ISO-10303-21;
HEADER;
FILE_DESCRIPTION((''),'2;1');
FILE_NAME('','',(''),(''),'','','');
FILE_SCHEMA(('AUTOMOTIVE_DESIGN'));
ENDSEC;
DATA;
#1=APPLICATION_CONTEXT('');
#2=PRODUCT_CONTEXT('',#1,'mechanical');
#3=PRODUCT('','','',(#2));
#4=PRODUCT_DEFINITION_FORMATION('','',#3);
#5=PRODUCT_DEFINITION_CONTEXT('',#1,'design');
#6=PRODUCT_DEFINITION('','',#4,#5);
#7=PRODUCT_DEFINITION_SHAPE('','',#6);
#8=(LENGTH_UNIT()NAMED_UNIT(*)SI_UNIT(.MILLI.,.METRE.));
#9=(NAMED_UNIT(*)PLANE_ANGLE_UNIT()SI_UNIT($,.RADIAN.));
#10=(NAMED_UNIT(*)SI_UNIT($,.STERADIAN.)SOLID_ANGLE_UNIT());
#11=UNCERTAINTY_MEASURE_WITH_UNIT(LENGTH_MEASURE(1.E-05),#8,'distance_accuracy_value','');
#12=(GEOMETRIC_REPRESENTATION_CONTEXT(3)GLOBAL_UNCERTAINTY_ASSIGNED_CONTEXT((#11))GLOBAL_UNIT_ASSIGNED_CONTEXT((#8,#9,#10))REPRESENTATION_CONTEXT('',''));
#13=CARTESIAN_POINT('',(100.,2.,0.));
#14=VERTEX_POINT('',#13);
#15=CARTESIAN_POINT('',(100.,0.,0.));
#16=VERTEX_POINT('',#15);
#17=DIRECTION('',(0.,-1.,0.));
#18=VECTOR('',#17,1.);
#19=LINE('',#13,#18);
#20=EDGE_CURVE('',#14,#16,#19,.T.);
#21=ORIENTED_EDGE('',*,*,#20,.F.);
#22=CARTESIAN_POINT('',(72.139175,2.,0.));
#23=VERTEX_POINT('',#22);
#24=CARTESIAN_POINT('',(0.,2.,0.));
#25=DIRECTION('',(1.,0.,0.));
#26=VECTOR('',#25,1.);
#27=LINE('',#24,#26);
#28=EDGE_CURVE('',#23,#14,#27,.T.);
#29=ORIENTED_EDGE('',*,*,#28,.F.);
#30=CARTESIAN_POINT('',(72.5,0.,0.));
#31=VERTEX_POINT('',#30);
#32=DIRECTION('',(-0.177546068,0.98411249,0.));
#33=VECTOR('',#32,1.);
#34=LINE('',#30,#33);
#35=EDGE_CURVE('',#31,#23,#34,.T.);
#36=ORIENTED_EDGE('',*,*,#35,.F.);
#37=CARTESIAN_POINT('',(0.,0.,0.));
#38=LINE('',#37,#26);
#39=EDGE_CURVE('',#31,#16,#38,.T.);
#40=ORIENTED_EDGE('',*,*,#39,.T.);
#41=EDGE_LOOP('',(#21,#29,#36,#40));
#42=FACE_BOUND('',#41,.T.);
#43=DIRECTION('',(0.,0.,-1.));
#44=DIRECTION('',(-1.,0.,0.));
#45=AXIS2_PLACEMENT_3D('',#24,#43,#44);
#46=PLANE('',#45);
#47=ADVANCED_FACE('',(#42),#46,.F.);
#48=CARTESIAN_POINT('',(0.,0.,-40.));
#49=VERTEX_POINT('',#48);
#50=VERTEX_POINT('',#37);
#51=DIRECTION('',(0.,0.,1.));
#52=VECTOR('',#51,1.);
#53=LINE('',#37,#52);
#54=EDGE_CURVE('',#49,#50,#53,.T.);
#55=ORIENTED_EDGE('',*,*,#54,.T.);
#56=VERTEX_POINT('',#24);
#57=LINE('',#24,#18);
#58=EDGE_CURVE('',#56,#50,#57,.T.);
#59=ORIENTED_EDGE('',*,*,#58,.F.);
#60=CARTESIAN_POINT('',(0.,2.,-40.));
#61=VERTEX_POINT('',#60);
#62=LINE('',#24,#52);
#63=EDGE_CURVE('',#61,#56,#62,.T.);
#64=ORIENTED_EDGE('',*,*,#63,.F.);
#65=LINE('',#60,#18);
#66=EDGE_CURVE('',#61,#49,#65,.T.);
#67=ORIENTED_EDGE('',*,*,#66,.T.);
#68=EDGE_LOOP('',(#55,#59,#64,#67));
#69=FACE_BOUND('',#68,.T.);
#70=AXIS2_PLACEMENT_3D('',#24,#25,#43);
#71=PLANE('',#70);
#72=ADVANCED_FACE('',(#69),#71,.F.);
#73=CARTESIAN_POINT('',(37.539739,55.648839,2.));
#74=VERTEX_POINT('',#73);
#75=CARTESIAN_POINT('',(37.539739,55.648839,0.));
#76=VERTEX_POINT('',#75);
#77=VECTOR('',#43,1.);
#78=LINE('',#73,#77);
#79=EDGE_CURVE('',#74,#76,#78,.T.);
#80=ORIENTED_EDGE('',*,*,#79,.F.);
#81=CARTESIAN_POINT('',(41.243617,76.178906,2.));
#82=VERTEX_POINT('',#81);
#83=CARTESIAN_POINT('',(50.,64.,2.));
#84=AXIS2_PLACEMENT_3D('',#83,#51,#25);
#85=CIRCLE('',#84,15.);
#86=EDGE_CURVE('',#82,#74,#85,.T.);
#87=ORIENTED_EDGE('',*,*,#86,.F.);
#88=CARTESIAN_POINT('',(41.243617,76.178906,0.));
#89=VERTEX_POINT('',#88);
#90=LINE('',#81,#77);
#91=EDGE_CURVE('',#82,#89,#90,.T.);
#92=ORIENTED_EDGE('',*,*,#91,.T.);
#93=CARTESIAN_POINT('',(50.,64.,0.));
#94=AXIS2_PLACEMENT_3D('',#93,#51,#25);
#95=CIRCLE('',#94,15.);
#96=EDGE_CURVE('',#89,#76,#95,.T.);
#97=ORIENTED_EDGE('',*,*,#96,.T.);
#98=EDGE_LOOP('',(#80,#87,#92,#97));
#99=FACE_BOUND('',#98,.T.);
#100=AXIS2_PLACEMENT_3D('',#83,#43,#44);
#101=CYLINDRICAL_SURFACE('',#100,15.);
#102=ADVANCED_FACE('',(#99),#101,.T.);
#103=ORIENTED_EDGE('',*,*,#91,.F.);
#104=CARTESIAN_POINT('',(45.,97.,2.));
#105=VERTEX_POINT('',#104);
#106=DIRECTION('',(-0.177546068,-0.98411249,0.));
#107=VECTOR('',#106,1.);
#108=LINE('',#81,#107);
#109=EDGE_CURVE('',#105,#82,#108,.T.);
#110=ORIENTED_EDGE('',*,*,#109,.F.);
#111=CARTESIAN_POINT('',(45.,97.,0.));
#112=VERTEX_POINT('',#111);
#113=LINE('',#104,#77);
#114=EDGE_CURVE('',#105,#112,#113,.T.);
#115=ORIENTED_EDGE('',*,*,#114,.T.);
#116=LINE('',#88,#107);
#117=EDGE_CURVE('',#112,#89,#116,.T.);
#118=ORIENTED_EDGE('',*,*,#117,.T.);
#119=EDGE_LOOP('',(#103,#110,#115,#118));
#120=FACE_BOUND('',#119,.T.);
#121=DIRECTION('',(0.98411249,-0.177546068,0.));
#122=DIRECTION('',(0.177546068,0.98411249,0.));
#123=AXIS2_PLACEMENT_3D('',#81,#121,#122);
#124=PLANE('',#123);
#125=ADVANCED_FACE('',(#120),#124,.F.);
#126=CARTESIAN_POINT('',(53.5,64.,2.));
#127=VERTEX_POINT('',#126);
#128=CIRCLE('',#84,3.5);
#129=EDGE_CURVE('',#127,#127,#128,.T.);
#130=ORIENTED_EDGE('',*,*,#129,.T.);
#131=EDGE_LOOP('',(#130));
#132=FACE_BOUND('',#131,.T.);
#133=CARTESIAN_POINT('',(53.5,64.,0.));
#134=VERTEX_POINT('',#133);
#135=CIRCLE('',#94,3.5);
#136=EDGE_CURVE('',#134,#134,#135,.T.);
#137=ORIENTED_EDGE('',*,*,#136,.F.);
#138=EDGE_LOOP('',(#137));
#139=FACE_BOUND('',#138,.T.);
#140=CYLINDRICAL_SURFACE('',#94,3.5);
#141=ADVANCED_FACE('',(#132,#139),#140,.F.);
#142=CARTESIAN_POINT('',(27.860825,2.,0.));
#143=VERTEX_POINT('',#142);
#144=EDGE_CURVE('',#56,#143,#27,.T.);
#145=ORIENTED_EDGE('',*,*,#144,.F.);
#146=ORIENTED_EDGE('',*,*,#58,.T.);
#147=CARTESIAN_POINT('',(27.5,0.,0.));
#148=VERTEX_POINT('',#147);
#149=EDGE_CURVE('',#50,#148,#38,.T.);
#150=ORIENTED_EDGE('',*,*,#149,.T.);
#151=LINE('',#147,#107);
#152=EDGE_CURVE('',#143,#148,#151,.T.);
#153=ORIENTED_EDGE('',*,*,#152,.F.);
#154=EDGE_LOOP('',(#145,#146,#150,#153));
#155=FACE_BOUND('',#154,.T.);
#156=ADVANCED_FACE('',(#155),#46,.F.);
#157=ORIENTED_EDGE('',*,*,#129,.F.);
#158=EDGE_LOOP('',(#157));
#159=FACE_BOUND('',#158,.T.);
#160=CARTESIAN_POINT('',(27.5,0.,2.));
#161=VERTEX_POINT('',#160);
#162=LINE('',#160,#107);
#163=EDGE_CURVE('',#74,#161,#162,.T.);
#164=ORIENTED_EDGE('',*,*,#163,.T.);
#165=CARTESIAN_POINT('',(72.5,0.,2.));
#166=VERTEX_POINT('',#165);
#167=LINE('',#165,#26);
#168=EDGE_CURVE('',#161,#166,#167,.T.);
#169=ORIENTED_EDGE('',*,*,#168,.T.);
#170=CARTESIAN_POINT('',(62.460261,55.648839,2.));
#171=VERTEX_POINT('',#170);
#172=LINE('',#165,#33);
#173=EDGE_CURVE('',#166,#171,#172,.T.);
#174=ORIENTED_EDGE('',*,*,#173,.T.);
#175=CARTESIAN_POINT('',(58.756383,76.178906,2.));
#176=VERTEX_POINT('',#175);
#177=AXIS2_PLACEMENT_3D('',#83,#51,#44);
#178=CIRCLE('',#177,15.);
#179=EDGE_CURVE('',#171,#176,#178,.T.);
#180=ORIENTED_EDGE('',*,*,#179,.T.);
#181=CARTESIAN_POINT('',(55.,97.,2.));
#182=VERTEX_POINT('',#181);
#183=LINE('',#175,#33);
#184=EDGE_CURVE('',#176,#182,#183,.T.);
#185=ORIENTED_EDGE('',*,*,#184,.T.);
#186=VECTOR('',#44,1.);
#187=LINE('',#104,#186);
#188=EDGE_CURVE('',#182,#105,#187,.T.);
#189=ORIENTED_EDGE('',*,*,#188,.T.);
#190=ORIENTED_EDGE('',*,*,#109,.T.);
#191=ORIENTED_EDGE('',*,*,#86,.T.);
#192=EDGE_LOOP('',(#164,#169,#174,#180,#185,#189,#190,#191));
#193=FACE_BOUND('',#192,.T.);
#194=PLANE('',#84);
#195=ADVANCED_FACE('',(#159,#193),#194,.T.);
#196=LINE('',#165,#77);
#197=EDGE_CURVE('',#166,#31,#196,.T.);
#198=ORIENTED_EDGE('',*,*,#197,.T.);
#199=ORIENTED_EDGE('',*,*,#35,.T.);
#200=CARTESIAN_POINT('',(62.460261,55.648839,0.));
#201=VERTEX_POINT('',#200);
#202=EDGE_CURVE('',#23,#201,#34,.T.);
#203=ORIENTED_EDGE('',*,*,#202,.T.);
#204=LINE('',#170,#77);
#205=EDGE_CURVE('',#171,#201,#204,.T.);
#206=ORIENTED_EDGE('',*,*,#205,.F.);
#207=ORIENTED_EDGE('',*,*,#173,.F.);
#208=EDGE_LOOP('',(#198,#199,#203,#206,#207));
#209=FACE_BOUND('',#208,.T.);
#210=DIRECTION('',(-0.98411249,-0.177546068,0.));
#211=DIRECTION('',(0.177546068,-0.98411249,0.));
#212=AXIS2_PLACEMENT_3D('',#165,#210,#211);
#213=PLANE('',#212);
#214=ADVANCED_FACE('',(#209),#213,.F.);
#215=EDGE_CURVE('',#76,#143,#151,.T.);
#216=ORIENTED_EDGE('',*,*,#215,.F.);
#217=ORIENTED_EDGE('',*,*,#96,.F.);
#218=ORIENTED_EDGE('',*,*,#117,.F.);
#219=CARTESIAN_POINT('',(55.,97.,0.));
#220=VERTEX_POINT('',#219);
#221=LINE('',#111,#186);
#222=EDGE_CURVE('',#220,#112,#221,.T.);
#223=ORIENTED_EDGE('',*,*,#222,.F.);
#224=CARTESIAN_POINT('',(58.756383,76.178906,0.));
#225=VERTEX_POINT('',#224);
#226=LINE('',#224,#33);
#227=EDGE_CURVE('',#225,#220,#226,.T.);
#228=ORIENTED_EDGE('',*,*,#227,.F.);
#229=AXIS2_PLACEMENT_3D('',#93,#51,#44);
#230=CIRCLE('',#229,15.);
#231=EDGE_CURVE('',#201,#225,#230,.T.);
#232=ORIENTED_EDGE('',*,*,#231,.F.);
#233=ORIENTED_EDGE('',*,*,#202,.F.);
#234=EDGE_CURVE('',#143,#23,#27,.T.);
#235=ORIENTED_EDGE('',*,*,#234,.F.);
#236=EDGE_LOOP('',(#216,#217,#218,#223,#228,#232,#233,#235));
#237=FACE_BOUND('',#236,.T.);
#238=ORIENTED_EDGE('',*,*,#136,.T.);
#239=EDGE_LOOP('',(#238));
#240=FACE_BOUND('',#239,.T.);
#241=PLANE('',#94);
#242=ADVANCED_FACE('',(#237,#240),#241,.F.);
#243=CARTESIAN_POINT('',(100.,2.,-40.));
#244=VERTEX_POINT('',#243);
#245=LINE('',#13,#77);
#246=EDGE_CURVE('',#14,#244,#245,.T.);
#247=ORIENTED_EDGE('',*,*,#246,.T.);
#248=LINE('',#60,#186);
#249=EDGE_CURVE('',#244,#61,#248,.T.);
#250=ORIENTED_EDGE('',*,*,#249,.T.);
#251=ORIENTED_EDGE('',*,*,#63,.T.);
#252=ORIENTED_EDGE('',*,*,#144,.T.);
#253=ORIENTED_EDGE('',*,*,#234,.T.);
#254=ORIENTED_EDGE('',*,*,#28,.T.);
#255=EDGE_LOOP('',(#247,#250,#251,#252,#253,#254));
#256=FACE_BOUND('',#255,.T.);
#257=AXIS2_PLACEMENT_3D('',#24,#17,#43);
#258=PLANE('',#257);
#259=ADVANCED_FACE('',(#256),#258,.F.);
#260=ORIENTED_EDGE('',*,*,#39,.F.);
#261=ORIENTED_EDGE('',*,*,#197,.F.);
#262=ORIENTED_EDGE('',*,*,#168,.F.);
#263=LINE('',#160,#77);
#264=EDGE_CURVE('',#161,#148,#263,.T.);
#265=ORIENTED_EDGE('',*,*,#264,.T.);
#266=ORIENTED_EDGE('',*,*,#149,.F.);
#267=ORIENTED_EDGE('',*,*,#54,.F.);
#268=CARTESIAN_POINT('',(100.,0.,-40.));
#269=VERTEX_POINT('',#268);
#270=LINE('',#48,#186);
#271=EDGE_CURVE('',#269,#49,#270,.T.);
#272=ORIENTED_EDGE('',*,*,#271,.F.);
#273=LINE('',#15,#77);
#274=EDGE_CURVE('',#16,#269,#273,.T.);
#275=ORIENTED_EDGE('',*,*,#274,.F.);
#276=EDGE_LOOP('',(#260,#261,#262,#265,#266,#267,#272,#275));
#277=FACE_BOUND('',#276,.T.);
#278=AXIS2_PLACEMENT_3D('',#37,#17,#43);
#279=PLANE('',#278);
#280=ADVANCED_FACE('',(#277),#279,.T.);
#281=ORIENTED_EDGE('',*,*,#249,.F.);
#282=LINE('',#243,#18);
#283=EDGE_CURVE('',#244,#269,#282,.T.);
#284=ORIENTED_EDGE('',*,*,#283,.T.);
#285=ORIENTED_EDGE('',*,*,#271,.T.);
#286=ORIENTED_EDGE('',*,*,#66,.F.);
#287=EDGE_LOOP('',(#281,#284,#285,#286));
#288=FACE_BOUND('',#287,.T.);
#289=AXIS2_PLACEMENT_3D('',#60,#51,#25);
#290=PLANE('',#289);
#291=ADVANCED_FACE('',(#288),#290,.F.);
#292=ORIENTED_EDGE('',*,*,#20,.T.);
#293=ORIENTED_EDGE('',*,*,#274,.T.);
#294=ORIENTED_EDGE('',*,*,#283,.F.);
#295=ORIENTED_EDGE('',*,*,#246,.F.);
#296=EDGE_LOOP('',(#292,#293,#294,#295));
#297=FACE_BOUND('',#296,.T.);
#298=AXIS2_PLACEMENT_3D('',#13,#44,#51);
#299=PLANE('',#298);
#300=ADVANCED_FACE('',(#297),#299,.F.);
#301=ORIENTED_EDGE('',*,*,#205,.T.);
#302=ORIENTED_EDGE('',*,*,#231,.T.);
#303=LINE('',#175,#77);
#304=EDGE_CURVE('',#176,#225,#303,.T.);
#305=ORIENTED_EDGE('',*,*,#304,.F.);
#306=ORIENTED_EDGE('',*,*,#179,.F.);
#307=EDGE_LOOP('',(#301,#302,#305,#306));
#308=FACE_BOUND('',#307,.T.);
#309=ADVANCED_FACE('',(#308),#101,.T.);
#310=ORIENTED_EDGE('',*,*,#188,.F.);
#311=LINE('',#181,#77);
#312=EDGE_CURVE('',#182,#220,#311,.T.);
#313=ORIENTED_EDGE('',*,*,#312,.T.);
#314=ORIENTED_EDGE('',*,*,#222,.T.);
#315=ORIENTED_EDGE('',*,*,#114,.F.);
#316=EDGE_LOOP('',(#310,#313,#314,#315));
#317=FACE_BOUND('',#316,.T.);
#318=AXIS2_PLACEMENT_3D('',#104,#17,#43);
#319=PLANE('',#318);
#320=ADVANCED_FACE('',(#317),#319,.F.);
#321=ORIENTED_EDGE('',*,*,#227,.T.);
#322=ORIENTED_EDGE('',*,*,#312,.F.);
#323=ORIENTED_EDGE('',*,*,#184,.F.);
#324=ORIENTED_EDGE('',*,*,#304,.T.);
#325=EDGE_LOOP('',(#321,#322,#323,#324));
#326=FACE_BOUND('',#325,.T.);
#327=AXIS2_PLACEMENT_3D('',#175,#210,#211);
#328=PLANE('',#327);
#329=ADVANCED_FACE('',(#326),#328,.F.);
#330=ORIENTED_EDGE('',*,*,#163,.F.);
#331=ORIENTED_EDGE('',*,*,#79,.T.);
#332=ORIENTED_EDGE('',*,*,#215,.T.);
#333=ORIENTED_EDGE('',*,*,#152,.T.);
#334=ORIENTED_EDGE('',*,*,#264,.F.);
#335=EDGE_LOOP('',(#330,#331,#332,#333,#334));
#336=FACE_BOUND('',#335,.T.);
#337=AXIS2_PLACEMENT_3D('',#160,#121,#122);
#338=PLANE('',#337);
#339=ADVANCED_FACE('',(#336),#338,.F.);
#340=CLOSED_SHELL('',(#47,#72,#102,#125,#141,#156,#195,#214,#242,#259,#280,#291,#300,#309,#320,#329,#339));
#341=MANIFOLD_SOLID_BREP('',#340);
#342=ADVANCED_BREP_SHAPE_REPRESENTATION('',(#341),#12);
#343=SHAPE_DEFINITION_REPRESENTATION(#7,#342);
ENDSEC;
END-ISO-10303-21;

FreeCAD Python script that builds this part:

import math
import FreeCAD as App
import Part
import Sketcher

V = App.Vector


def add_polygon(sketch, points):
    """Adds a closed chain of lines whose ends are joined by coincident constraints."""
    first, n = sketch.GeometryCount, len(points)
    for a, b in zip(points, points[1:] + points[:1]):
        sketch.addGeometry(Part.LineSegment(App.Vector(*a, 0), App.Vector(*b, 0)), False)
    for i in range(n):
        sketch.addConstraint(Sketcher.Constraint("Coincident", first + i, 2, first + (i + 1) % n, 1))

doc = App.newDocument("Part")
body = doc.addObject("PartDesign::Body", "Body")

sketch1 = doc.addObject("Sketcher::SketchObject", "Sketch")
body.addObject(sketch1)
sketch1.AttachmentSupport = (doc.XZ_Plane, [""])
sketch1.MapMode = "FlatFace"
add_polygon(sketch1, [(0, -40), (0, 0), (100, 0), (100, -40)])
sketch1.addConstraint([
    Sketcher.Constraint("Vertical", 0),
    Sketcher.Constraint("Horizontal", 1),
    Sketcher.Constraint("Vertical", 2),
    Sketcher.Constraint("Horizontal", 3),
    Sketcher.Constraint("Coincident", 0, 2, -1, 1),
    Sketcher.Constraint("DistanceX", 1, 1, 1, 2, 100.0),
    Sketcher.Constraint("DistanceY", 0, 1, 0, 2, 40.0),
])
pad1 = doc.addObject("PartDesign::Pad", "Pad")
body.addObject(pad1)
pad1.Profile = sketch1
pad1.Length = 2
pad1.Reversed = True

sketch2 = doc.addObject("Sketcher::SketchObject", "Sketch001")
body.addObject(sketch2)
sketch2.AttachmentSupport = (doc.XY_Plane, [""])
sketch2.MapMode = "FlatFace"
sketch2.addGeometry([
    Part.LineSegment(V(28, 0, 0), V(72, 0, 0)),
    Part.LineSegment(V(72, 0, 0), V(62, 56, 0)),
    Part.ArcOfCircle(Part.Circle(V(50, 64, 0), V(0, 0, 1), 15), math.radians(-34), math.radians(54)),
    Part.LineSegment(V(59, 76, 0), V(55, 97, 0)),
    Part.LineSegment(V(55, 97, 0), V(45, 97, 0)),
    Part.LineSegment(V(45, 97, 0), V(41, 76, 0)),
    Part.ArcOfCircle(Part.Circle(V(50, 64, 0), V(0, 0, 1), 15), math.radians(126), math.radians(214)),
    Part.LineSegment(V(38, 56, 0), V(28, 0, 0)),
], False)
sketch2.addConstraint([
    Sketcher.Constraint("Coincident", 0, 2, 1, 1),
    Sketcher.Constraint("Coincident", 1, 2, 2, 1),
    Sketcher.Constraint("Coincident", 2, 2, 3, 1),
    Sketcher.Constraint("Coincident", 3, 2, 4, 1),
    Sketcher.Constraint("Coincident", 4, 2, 5, 1),
    Sketcher.Constraint("Coincident", 5, 2, 6, 1),
    Sketcher.Constraint("Coincident", 6, 2, 7, 1),
    Sketcher.Constraint("Coincident", 7, 2, 0, 1),
    Sketcher.Constraint("Horizontal", 0),
    Sketcher.Constraint("Horizontal", 4),
    Sketcher.Constraint("Coincident", 6, 3, 2, 3),
    Sketcher.Constraint("Equal", 2, 6),
    Sketcher.Constraint("PointOnObject", 0, 2, -1),
    Sketcher.Constraint("Parallel", 1, 3),
    Sketcher.Constraint("Parallel", 5, 7),
    Sketcher.Constraint("Horizontal", 2, 2, 5, 2),
    Sketcher.Constraint("Horizontal", 1, 2, 6, 2),
    Sketcher.Constraint("Equal", 3, 5),
    Sketcher.Constraint("Radius", 2, 15.0),
    Sketcher.Constraint("DistanceX", 0, 1, 0, 2, 45.0),
    Sketcher.Constraint("DistanceX", 4, 2, 4, 1, 10.0),
    Sketcher.Constraint("DistanceX", -1, 1, 2, 3, 50.0),
    Sketcher.Constraint("DistanceY", -1, 1, 2, 3, 64.0),
    Sketcher.Constraint("DistanceY", -1, 1, 3, 2, 97.0),
    Sketcher.Constraint("Distance", 3, 21.157229),
])
pad2 = doc.addObject("PartDesign::Pad", "Pad001")
body.addObject(pad2)
pad2.Profile = sketch2
pad2.Length = 2

sketch3 = doc.addObject("Sketcher::SketchObject", "Sketch002")
body.addObject(sketch3)
sketch3.AttachmentSupport = (doc.XY_Plane, [""])
sketch3.MapMode = "FlatFace"
sketch3.AttachmentOffset = App.Placement(V(0, 0, 2), App.Rotation())
sketch3.addGeometry(Part.Circle(V(50, 64, 0), V(0, 0, 1), 3.5), False)
sketch3.addConstraint([
    Sketcher.Constraint("Diameter", 0, 7.0),
    Sketcher.Constraint("DistanceX", -1, 1, 0, 3, 50.0),
    Sketcher.Constraint("DistanceY", -1, 1, 0, 3, 64.0),
])
pocket1 = doc.addObject("PartDesign::Pocket", "Pocket")
body.addObject(pocket1)
pocket1.Profile = sketch3
pocket1.Length = 2

doc.recompute()
